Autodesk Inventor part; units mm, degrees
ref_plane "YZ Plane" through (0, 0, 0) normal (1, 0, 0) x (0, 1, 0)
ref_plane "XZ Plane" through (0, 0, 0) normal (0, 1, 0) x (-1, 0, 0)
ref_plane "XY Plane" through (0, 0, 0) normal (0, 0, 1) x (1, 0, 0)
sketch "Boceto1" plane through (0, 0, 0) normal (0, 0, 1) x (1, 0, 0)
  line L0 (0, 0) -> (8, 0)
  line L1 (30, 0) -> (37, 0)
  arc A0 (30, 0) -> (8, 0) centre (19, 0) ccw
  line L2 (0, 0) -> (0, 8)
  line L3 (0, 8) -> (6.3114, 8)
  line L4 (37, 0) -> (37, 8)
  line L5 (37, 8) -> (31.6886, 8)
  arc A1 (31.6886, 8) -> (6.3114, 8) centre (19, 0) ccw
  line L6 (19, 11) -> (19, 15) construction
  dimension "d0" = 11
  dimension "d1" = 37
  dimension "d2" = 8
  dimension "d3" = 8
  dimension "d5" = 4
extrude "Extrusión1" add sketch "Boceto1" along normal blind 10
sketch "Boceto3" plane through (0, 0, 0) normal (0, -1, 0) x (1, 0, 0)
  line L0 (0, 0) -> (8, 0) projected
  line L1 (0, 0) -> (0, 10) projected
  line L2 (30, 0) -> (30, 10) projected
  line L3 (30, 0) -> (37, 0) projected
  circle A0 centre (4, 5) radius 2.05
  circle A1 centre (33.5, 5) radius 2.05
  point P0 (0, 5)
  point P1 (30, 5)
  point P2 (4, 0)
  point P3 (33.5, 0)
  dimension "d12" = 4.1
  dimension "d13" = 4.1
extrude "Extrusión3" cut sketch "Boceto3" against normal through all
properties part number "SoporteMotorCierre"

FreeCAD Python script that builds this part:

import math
import FreeCAD as App
import Part
import Sketcher

doc = App.newDocument("Part")
body = doc.addObject("PartDesign::Body", "Body")

# Sketch on XY plane
sketch1 = doc.addObject("Sketcher::SketchObject", "Sketch")
body.addObject(sketch1)
sketch1.AttachmentSupport = (doc.XY_Plane, [""])
sketch1.MapMode = "FlatFace"
sketch1.addGeometry([
    Part.LineSegment(App.Vector(0, 8, 0), App.Vector(0, 0, 0)),  # 0
    Part.LineSegment(App.Vector(0, 0, 0), App.Vector(8, 0, 0)),  # 1
    Part.ArcOfCircle(Part.Circle(App.Vector(19, 0, 0), App.Vector(0, 0, 1), 11), math.radians(0), math.radians(180)),  # 2
    Part.LineSegment(App.Vector(30, 0, 0), App.Vector(37, 0, 0)),  # 3
    Part.LineSegment(App.Vector(37, 0, 0), App.Vector(37, 8, 0)),  # 4
    Part.LineSegment(App.Vector(37, 8, 0), App.Vector(32, 8, 0)),  # 5
    Part.ArcOfCircle(Part.Circle(App.Vector(19, 0, 0), App.Vector(0, 0, 1), 15), math.radians(32), math.radians(148)),  # 6
    Part.LineSegment(App.Vector(6, 8, 0), App.Vector(0, 8, 0)),  # 7
], False)
sketch1.addConstraint([
    Sketcher.Constraint("Coincident", 0, 2, 1, 1),
    Sketcher.Constraint("Coincident", 1, 2, 2, 2),
    Sketcher.Constraint("Coincident", 2, 1, 3, 1),
    Sketcher.Constraint("Coincident", 3, 2, 4, 1),
    Sketcher.Constraint("Coincident", 4, 2, 5, 1),
    Sketcher.Constraint("Coincident", 5, 2, 6, 1),
    Sketcher.Constraint("Coincident", 6, 2, 7, 1),
    Sketcher.Constraint("Coincident", 7, 2, 0, 1),
    Sketcher.Constraint("Vertical", 0),
    Sketcher.Constraint("Horizontal", 1),
    Sketcher.Constraint("Horizontal", 3),
    Sketcher.Constraint("Vertical", 4),
    Sketcher.Constraint("Horizontal", 5),
    Sketcher.Constraint("Horizontal", 7),
    Sketcher.Constraint("Coincident", 0, 2, -1, 1),
    Sketcher.Constraint("Coincident", 6, 3, 2, 3),
    Sketcher.Constraint("PointOnObject", 2, 3, -1),
    Sketcher.Constraint("PointOnObject", 2, 1, -1),
    Sketcher.Constraint("Horizontal", 5, 2, 6, 2),
    Sketcher.Constraint("Equal", 1, 0),
    Sketcher.Constraint("Radius", 2, 11.0),
    Sketcher.Constraint("DistanceX", 1, 1, 1, 2, 8.0),
    Sketcher.Constraint("DistanceX", -1, 1, 3, 2, 37.0),
    Sketcher.Constraint("Radius", 6, 15.0),
])
pad1 = doc.addObject("PartDesign::Pad", "Pad")
body.addObject(pad1)
pad1.Profile = sketch1
pad1.Length = 10

# Sketch on XZ plane
sketch2 = doc.addObject("Sketcher::SketchObject", "Sketch001")
body.addObject(sketch2)
sketch2.AttachmentSupport = (doc.XZ_Plane, [""])
sketch2.MapMode = "FlatFace"
sketch2.addGeometry([
    Part.Circle(App.Vector(4, 5, 0), App.Vector(0, 0, 1), 2),
    Part.Circle(App.Vector(33.5, 5, 0), App.Vector(0, 0, 1), 2),
], False)
sketch2.addConstraint([
    Sketcher.Constraint("Equal", 0, 1),
    Sketcher.Constraint("Horizontal", 0, 3, 1, 3),
    Sketcher.Constraint("Diameter", 0, 4.1),
    Sketcher.Constraint("DistanceX", -1, 1, 0, 3, 4.0),
    Sketcher.Constraint("DistanceY", -1, 1, 0, 3, 5.0),
    Sketcher.Constraint("DistanceX", -1, 1, 1, 3, 33.5),
])
pocket1 = doc.addObject("PartDesign::Pocket", "Pocket")
body.addObject(pocket1)
pocket1.Profile = sketch2
pocket1.Type = "ThroughAll"

doc.recompute()
